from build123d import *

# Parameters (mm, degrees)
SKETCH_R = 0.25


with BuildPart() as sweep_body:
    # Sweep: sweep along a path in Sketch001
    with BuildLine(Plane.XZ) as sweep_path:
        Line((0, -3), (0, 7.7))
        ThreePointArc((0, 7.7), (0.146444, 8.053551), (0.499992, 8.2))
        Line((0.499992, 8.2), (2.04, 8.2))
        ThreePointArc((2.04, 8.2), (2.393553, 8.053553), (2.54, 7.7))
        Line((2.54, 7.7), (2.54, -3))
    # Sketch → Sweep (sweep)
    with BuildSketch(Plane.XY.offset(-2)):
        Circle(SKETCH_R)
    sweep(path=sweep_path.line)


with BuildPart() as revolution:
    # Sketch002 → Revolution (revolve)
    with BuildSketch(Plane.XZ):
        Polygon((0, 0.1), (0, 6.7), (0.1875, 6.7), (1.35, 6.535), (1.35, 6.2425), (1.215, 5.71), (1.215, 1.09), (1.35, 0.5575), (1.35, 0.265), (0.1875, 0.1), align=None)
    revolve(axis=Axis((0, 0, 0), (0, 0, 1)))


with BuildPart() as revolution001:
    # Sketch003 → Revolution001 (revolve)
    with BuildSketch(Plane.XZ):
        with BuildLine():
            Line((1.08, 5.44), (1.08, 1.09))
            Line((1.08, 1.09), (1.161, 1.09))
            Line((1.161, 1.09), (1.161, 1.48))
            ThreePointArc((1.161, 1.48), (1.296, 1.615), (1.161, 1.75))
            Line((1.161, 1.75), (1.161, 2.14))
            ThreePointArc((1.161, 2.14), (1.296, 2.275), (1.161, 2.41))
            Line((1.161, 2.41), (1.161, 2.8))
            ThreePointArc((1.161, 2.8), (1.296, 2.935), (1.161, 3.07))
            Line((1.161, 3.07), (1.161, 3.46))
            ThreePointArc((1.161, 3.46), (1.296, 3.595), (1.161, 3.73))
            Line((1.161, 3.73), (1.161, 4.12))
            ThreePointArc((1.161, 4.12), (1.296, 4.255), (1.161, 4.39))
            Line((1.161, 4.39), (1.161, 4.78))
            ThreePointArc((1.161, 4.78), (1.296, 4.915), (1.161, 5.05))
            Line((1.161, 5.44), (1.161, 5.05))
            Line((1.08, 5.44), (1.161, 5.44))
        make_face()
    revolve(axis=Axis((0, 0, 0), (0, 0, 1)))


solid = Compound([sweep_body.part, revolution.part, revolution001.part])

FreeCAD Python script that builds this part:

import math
import FreeCAD as App
import Part
import Sketcher

V = App.Vector

doc = App.newDocument("Part")
params = doc.addObject("Spreadsheet::Sheet", "Params")
for row, (alias, value) in enumerate([
    ("sketch1_diameter", "0.5 mm"),
    ("sketch2_radius", "0.5 mm"),
    ("sketch2_height", "10.7 mm"),
    ("sketch3_height", "6.6 mm"),
    ("sketch3_height2", "4.62 mm"),
    ("revolution_angle", "360 deg"),
    ("sketch4_height", "4.35 mm"),
    ("revolution2_angle", "360 deg"),
], start=1):
    params.set(f"A{row}", alias)
    params.set(f"B{row}", "=" + value)
    params.setAlias(f"B{row}", alias)

body = doc.addObject("PartDesign::Body", "Body")

# Sketch on XY plane
sketch1 = body.newObject("Sketcher::SketchObject", "Sketch")
sketch1.AttachmentSupport = (doc.getObject("XY_Plane"), [""])
sketch1.MapMode = "FlatFace"
sketch1.AttachmentOffset = App.Placement(V(0, 0, -2), App.Rotation())
sketch1.addGeometry(Part.Circle(V(0, 0, 0), V(0, 0, 1), 0.25), False)
sketch1.addConstraint([
    Sketcher.Constraint("Coincident", 0, 3, -1, 1),
    Sketcher.Constraint("Diameter", 0, 0.5),
])
sketch1.setExpression("Constraints[1]", "Params.sketch1_diameter")

# Sketch on XZ plane
sketch2 = body.newObject("Sketcher::SketchObject", "Sketch001")
sketch2.AttachmentSupport = (doc.getObject("XZ_Plane"), [""])
sketch2.MapMode = "FlatFace"
sketch2.addGeometry([
    Part.LineSegment(V(0, -3, 0), V(0, 7.7, 0)),  # 0
    Part.ArcOfCircle(Part.Circle(V(0.5, 7.7, 0), V(0, 0, 1), 0.5), math.radians(90), math.radians(180)),  # 1
    Part.LineSegment(V(0.5, 8.2, 0), V(2.04, 8.2, 0)),  # 2
    Part.ArcOfCircle(Part.Circle(V(2.04, 7.7, 0), V(0, 0, 1), 0.5), math.radians(0), math.radians(90)),  # 3
    Part.LineSegment(V(2.54, 7.7, 0), V(2.54, -3, 0)),  # 4
], False)
sketch2.addConstraint([
    Sketcher.Constraint("Tangent", 0, 2, 1, 2),
    Sketcher.Constraint("Coincident", 1, 1, 2, 1),
    Sketcher.Constraint("Coincident", 2, 2, 3, 2),
    Sketcher.Constraint("Coincident", 3, 1, 4, 1),
    Sketcher.Constraint("Vertical", 0),
    Sketcher.Constraint("Horizontal", 2),
    Sketcher.Constraint("Vertical", 4),
    Sketcher.Constraint("Equal", 1, 3),
    Sketcher.Constraint("PointOnObject", 0, 1, -2),
    Sketcher.Constraint("Horizontal", 0, 2, 3, 1),
    Sketcher.Constraint("Horizontal", 0, 1, 4, 2),
    Sketcher.Constraint("Vertical", 3, 3, 2, 2),
    Sketcher.Constraint("Radius", 1, 0.5),
    Sketcher.Constraint("DistanceY", 0, 1, 0, 2, 10.7),
    Sketcher.Constraint("DistanceY", 0, 1, -1, 1, 3.0),
    Sketcher.Constraint("DistanceX", -1, 1, 3, 3, 2.039999),
    Sketcher.Constraint("DistanceX", 2, 1, 2, 2, 1.540008),
])
sketch2.setExpression("Constraints[12]", "Params.sketch2_radius")
sketch2.setExpression("Constraints[13]", "Params.sketch2_height")
doc.recompute()

additivepipe = body.newObject("PartDesign::AdditivePipe", "AdditivePipe")
additivepipe.Profile = sketch1
additivepipe.Spine = (sketch2, ["Edge1", "Edge2", "Edge3", "Edge4", "Edge5"])
body2 = doc.addObject("PartDesign::Body", "Body001")

# Sketch on XZ plane
sketch3 = body2.newObject("Sketcher::SketchObject", "Sketch002")
sketch3.AttachmentSupport = (doc.getObject("XZ_Plane001"), [""])
sketch3.MapMode = "FlatFace"
sketch3.addGeometry([
    Part.LineSegment(V(0, 6.7, 0), V(0, 0.1, 0)),  # 0
    Part.LineSegment(V(0, 0.1, 0), V(0.19, 0.1, 0)),  # 1
    Part.LineSegment(V(0.19, 0.1, 0), V(1.35, 0.27, 0)),  # 2
    Part.LineSegment(V(1.35, 0.27, 0), V(1.35, 0.56, 0)),  # 3
    Part.LineSegment(V(1.35, 0.56, 0), V(1.22, 1.09, 0)),  # 4
    Part.LineSegment(V(1.22, 1.09, 0), V(1.22, 5.71, 0)),  # 5
    Part.LineSegment(V(1.22, 5.71, 0), V(1.35, 6.24, 0)),  # 6
    Part.LineSegment(V(1.35, 6.24, 0), V(1.35, 6.54, 0)),  # 7
    Part.LineSegment(V(1.35, 6.54, 0), V(0.19, 6.7, 0)),  # 8
    Part.LineSegment(V(0.19, 6.7, 0), V(0, 6.7, 0)),  # 9
], False)
sketch3.addConstraint([
    Sketcher.Constraint("Coincident", 0, 2, 1, 1),
    Sketcher.Constraint("Coincident", 1, 2, 2, 1),
    Sketcher.Constraint("Coincident", 2, 2, 3, 1),
    Sketcher.Constraint("Coincident", 3, 2, 4, 1),
    Sketcher.Constraint("Coincident", 4, 2, 5, 1),
    Sketcher.Constraint("Coincident", 5, 2, 6, 1),
    Sketcher.Constraint("Coincident", 6, 2, 7, 1),
    Sketcher.Constraint("Coincident", 7, 2, 8, 1),
    Sketcher.Constraint("Coincident", 8, 2, 9, 1),
    Sketcher.Constraint("Coincident", 9, 2, 0, 1),
    Sketcher.Constraint("Vertical", 0),
    Sketcher.Constraint("Horizontal", 1),
    Sketcher.Constraint("Vertical", 3),
    Sketcher.Constraint("Vertical", 5),
    Sketcher.Constraint("Vertical", 7),
    Sketcher.Constraint("Horizontal", 9),
    Sketcher.Constraint("PointOnObject", 0, 2, -2),
    Sketcher.Constraint("Vertical", 3, 2, 6, 2),
    Sketcher.Constraint("Vertical", 1, 2, 8, 2),
    Sketcher.Constraint("Equal", 3, 7),
    Sketcher.Constraint("Equal", 4, 6),
    Sketcher.Constraint("Equal", 2, 8),
    Sketcher.Constraint("DistanceY", 0, 2, 0, 1, 6.6),
    Sketcher.Constraint("DistanceY", 5, 1, 5, 2, 4.62),
    Sketcher.Constraint("DistanceY", -1, 1, 0, 2, 0.1),
    Sketcher.Constraint("DistanceX", -1, 1, 2, 2, 1.35),
    Sketcher.Constraint("DistanceY", 2, 2, 7, 2, 6.27),
    Sketcher.Constraint("DistanceX", 1, 1, 1, 2, 0.1875),
    Sketcher.Constraint("DistanceY", 3, 1, 3, 2, 0.2925),
    Sketcher.Constraint("DistanceX", -1, 1, 4, 2, 1.215),
])
sketch3.setExpression("Constraints[22]", "Params.sketch3_height")
sketch3.setExpression("Constraints[23]", "Params.sketch3_height2")
revolution = body2.newObject("PartDesign::Revolution", "Revolution")
revolution.Profile = sketch3
revolution.ReferenceAxis = (sketch3, ["V_Axis"])
revolution.setExpression("Angle", "Params.revolution_angle")
body3 = doc.addObject("PartDesign::Body", "Body002")

# Sketch on XZ plane
sketch4 = body3.newObject("Sketcher::SketchObject", "Sketch003")
sketch4.AttachmentSupport = (doc.getObject("XZ_Plane002"), [""])
sketch4.MapMode = "FlatFace"
sketch4.addGeometry([
    Part.LineSegment(V(1.08, 5.44, 0), V(1.08, 1.09, 0)),  # 0
    Part.LineSegment(V(1.08, 1.09, 0), V(1.16, 1.09, 0)),  # 1
    Part.LineSegment(V(1.16, 1.09, 0), V(1.16, 1.48, 0)),  # 2
    Part.ArcOfCircle(Part.Circle(V(1.16, 1.61, 0), V(0, 0, 1), 0.14), math.radians(-90), math.radians(90)),  # 3
    Part.LineSegment(V(1.16, 1.75, 0), V(1.16, 2.14, 0)),  # 4
    Part.ArcOfCircle(Part.Circle(V(1.16, 2.27, 0), V(0, 0, 1), 0.14), math.radians(-90), math.radians(90)),  # 5
    Part.LineSegment(V(1.16, 2.41, 0), V(1.16, 2.8, 0)),  # 6
    Part.ArcOfCircle(Part.Circle(V(1.16, 2.94, 0), V(0, 0, 1), 0.14), math.radians(-90), math.radians(90)),  # 7
    Part.LineSegment(V(1.16, 3.07, 0), V(1.16, 3.46, 0)),  # 8
    Part.ArcOfCircle(Part.Circle(V(1.16, 3.6, 0), V(0, 0, 1), 0.14), math.radians(-90), math.radians(90)),  # 9
    Part.LineSegment(V(1.16, 3.73, 0), V(1.16, 4.12, 0)),  # 10
    Part.ArcOfCircle(Part.Circle(V(1.16, 4.25, 0), V(0, 0, 1), 0.14), math.radians(-90), math.radians(90)),  # 11
    Part.LineSegment(V(1.16, 4.39, 0), V(1.16, 4.78, 0)),  # 12
    Part.ArcOfCircle(Part.Circle(V(1.16, 4.92, 0), V(0, 0, 1), 0.14), math.radians(-90), math.radians(90)),  # 13
    Part.LineSegment(V(1.16, 5.05, 0), V(1.16, 5.44, 0)),  # 14
    Part.LineSegment(V(1.16, 5.44, 0), V(1.08, 5.44, 0)),  # 15
], False)
sketch4.addConstraint([
    Sketcher.Constraint("Coincident", 0, 2, 1, 1),
    Sketcher.Constraint("Coincident", 1, 2, 2, 1),
    Sketcher.Constraint("Coincident", 2, 2, 3, 1),
    Sketcher.Constraint("Coincident", 3, 2, 4, 1),
    Sketcher.Constraint("Coincident", 4, 2, 5, 1),
    Sketcher.Constraint("Coincident", 5, 2, 6, 1),
    Sketcher.Constraint("Coincident", 6, 2, 7, 1),
    Sketcher.Constraint("Coincident", 7, 2, 8, 1),
    Sketcher.Constraint("Coincident", 8, 2, 9, 1),
    Sketcher.Constraint("Coincident", 9, 2, 10, 1),
    Sketcher.Constraint("Coincident", 10, 2, 11, 1),
    Sketcher.Constraint("Coincident", 11, 2, 12, 1),
    Sketcher.Constraint("Coincident", 12, 2, 13, 1),
    Sketcher.Constraint("Coincident", 13, 2, 14, 1),
    Sketcher.Constraint("Coincident", 14, 2, 15, 1),
    Sketcher.Constraint("Coincident", 15, 2, 0, 1),
    Sketcher.Constraint("Vertical", 0),
    Sketcher.Constraint("Horizontal", 1),
    Sketcher.Constraint("Vertical", 2),
    Sketcher.Constraint("Vertical", 4),
    Sketcher.Constraint("Vertical", 6),
    Sketcher.Constraint("Vertical", 8),
    Sketcher.Constraint("Vertical", 10),
    Sketcher.Constraint("Vertical", 12),
    Sketcher.Constraint("Vertical", 14),
    Sketcher.Constraint("Horizontal", 15),
    Sketcher.Constraint("Equal", 3, 5),
    Sketcher.Constraint("Equal", 5, 7),
    Sketcher.Constraint("Equal", 7, 9),
    Sketcher.Constraint("Equal", 9, 11),
    Sketcher.Constraint("Equal", 11, 13),
    Sketcher.Constraint("Vertical", 3, 3, 5, 3),
    Sketcher.Constraint("Vertical", 5, 3, 7, 3),
    Sketcher.Constraint("Vertical", 7, 3, 9, 3),
    Sketcher.Constraint("Vertical", 9, 3, 11, 3),
    Sketcher.Constraint("Vertical", 11, 3, 13, 3),
    Sketcher.Constraint("Vertical", 13, 3, 1, 2),
    Sketcher.Constraint("Vertical", 2, 2, 3, 2),
    Sketcher.Constraint("Vertical", 4, 2, 5, 2),
    Sketcher.Constraint("Vertical", 6, 2, 7, 2),
    Sketcher.Constraint("Vertical", 8, 2, 9, 2),
    Sketcher.Constraint("Vertical", 10, 2, 11, 2),
    Sketcher.Constraint("Vertical", 12, 2, 13, 2),
    Sketcher.Constraint("Equal", 2, 4),
    Sketcher.Constraint("Equal", 4, 6),
    Sketcher.Constraint("Equal", 6, 8),
    Sketcher.Constraint("Equal", 8, 10),
    Sketcher.Constraint("Equal", 10, 12),
    Sketcher.Constraint("Equal", 12, 14),
    Sketcher.Constraint("Radius", 3, 0.135),
    Sketcher.Constraint("DistanceY", 0, 2, 0, 1, 4.35),
    Sketcher.Constraint("DistanceY", -1, 1, 6, 2, 2.8),
    Sketcher.Constraint("DistanceX", 1, 1, 1, 2, 0.081),
    Sketcher.Constraint("DistanceX", -1, 1, 0, 2, 1.08),
])
sketch4.setExpression("Constraints[50]", "Params.sketch4_height")
revolution2 = body3.newObject("PartDesign::Revolution", "Revolution001")
revolution2.Profile = sketch4
revolution2.ReferenceAxis = (sketch4, ["V_Axis"])
revolution2.setExpression("Angle", "Params.revolution2_angle")

doc.recompute()
